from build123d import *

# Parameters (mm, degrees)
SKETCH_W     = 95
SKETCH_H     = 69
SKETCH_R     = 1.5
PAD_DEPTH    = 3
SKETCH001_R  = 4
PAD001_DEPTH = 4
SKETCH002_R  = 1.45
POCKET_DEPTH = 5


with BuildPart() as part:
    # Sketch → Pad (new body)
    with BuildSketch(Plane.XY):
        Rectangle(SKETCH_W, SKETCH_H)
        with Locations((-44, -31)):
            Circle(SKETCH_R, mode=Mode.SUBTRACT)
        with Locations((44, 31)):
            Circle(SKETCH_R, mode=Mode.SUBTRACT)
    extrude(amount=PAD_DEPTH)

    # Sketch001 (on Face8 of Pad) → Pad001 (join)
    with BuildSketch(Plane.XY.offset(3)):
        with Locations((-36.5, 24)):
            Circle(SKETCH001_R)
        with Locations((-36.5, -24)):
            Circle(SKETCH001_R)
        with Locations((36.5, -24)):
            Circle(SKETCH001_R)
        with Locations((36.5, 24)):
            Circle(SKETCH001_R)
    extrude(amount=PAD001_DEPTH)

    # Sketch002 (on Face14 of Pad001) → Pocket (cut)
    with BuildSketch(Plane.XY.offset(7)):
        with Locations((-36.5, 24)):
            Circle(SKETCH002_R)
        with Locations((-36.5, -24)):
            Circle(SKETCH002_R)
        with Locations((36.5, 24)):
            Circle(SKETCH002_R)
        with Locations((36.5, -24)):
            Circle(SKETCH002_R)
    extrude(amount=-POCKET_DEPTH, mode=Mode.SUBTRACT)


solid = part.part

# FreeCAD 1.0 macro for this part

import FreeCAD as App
import Part
import Sketcher
Q = App.Units.Quantity


def add_polygon(sketch, points):
    """Adds a closed chain of lines whose ends are joined by coincident constraints."""
    first, n = sketch.GeometryCount, len(points)
    for a, b in zip(points, points[1:] + points[:1]):
        sketch.addGeometry(Part.LineSegment(App.Vector(*a, 0), App.Vector(*b, 0)), False)
    for i in range(n):
        sketch.addConstraint(Sketcher.Constraint("Coincident", first + i, 2, first + (i + 1) % n, 1))

doc = App.newDocument("Part")
params = doc.addObject("Spreadsheet::Sheet", "Params")
for row, (alias, value) in enumerate([
    ("sketch1_diameter", "3 mm"),
    ("sketch1_width", "95 mm"),
    ("sketch1_height", "69 mm"),
    ("pad1_length", "3 mm"),
    ("sketch2_diameter", "8 mm"),
    ("pad2_length", "4 mm"),
    ("sketch3_diameter", "2.9 mm"),
    ("pocket1_length", "5 mm"),
], start=1):
    params.set(f"A{row}", alias)
    params.set(f"B{row}", "=" + value)
    params.setAlias(f"B{row}", alias)

body = doc.addObject("PartDesign::Body", "Body")

sketch1 = body.newObject("Sketcher::SketchObject", "Sketch")
sketch1.AttachmentSupport = (doc.getObject("XY_Plane"), [""])
sketch1.MapMode = "FlatFace"
add_polygon(sketch1, [(-47.5, 34.5), (-47.5, -34.5), (47.5, -34.5), (47.5, 34.5)])
sketch1.addGeometry(Part.Circle(App.Vector(-44, -31, 0), App.Vector(0, 0, 1), 1.5), False)
sketch1.addGeometry(Part.Circle(App.Vector(44, 31, 0), App.Vector(0, 0, 1), 1.5), False)
sketch1.addConstraint([
    Sketcher.Constraint("Vertical", 0),
    Sketcher.Constraint("Horizontal", 1),
    Sketcher.Constraint("Vertical", 2),
    Sketcher.Constraint("Horizontal", 3),
    Sketcher.Constraint("Equal", 4, 5),
    Sketcher.Constraint("Symmetric", 4, 3, 5, 3, -1, 1),
    Sketcher.Constraint("Symmetric", 0, 2, 2, 2, -1, 1),
    Sketcher.Constraint("Diameter", 4, Q("3 mm")),
    Sketcher.Constraint("DistanceX", 1, 1, 1, 2, Q("95 mm")),
    Sketcher.Constraint("DistanceY", 0, 2, 0, 1, Q("69 mm")),
    Sketcher.Constraint("DistanceX", 4, 3, -1, 1, Q("44 mm")),
    Sketcher.Constraint("DistanceY", 4, 3, -1, 1, Q("31 mm")),
])
sketch1.setExpression("Constraints[11]", "Params.sketch1_diameter")
sketch1.setExpression("Constraints[12]", "Params.sketch1_width")
sketch1.setExpression("Constraints[13]", "Params.sketch1_height")
pad1 = body.newObject("PartDesign::Pad", "Pad")
pad1.Profile = sketch1
pad1.setExpression("Length", "Params.pad1_length")

sketch2 = body.newObject("Sketcher::SketchObject", "Sketch001")
sketch2.AttachmentSupport = (doc.getObject("XY_Plane"), [""])
sketch2.MapMode = "FlatFace"
sketch2.AttachmentOffset = App.Placement(App.Vector(0, 0, 3), App.Rotation())
sketch2.addGeometry([
    Part.Circle(App.Vector(-36.5, 24, 0), App.Vector(0, 0, 1), 4),
    Part.Circle(App.Vector(-36.5, -24, 0), App.Vector(0, 0, 1), 4),
    Part.Circle(App.Vector(36.5, -24, 0), App.Vector(0, 0, 1), 4),
    Part.Circle(App.Vector(36.5, 24, 0), App.Vector(0, 0, 1), 4),
], False)
sketch2.addConstraint([
    Sketcher.Constraint("Equal", 0, 1),
    Sketcher.Constraint("Equal", 1, 2),
    Sketcher.Constraint("Equal", 2, 3),
    Sketcher.Constraint("Symmetric", 0, 3, 2, 3, -1, 1),
    Sketcher.Constraint("Symmetric", 1, 3, 3, 3, -1, 1),
    Sketcher.Constraint("Symmetric", 1, 3, 2, 3, -2),
    Sketcher.Constraint("Diameter", 0, Q("8 mm")),
    Sketcher.Constraint("DistanceY", -1, 1, 0, 3, Q("24 mm")),
    Sketcher.Constraint("DistanceX", 1, 3, 2, 3, Q("73 mm")),
])
sketch2.setExpression("Constraints[6]", "Params.sketch2_diameter")
pad2 = body.newObject("PartDesign::Pad", "Pad001")
pad2.Profile = sketch2
pad2.setExpression("Length", "Params.pad2_length")

sketch3 = body.newObject("Sketcher::SketchObject", "Sketch002")
sketch3.AttachmentSupport = (doc.getObject("XY_Plane"), [""])
sketch3.MapMode = "FlatFace"
sketch3.AttachmentOffset = App.Placement(App.Vector(0, 0, 7), App.Rotation())
sketch3.addGeometry([
    Part.Circle(App.Vector(-36.5, 24, 0), App.Vector(0, 0, 1), 1.4),
    Part.Circle(App.Vector(-36.5, -24, 0), App.Vector(0, 0, 1), 1.4),
    Part.Circle(App.Vector(36.5, 24, 0), App.Vector(0, 0, 1), 1.4),
    Part.Circle(App.Vector(36.5, -24, 0), App.Vector(0, 0, 1), 1.4),
], False)
sketch3.addConstraint([
    Sketcher.Constraint("Equal", 0, 1),
    Sketcher.Constraint("Equal", 1, 2),
    Sketcher.Constraint("Equal", 2, 3),
    Sketcher.Constraint("Symmetric", 1, 3, 2, 3, -1, 1),
    Sketcher.Constraint("Symmetric", 0, 3, 3, 3, -1, 1),
    Sketcher.Constraint("Symmetric", 0, 3, 2, 3, -2),
    Sketcher.Constraint("Diameter", 0, Q("2.9 mm")),
    Sketcher.Constraint("DistanceY", -1, 1, 0, 3, Q("24 mm")),
    Sketcher.Constraint("DistanceX", 0, 3, 2, 3, Q("73 mm")),
])
sketch3.setExpression("Constraints[6]", "Params.sketch3_diameter")
pocket1 = body.newObject("PartDesign::Pocket", "Pocket")
pocket1.Profile = sketch3
pocket1.setExpression("Length", "Params.pocket1_length")

doc.recompute()
